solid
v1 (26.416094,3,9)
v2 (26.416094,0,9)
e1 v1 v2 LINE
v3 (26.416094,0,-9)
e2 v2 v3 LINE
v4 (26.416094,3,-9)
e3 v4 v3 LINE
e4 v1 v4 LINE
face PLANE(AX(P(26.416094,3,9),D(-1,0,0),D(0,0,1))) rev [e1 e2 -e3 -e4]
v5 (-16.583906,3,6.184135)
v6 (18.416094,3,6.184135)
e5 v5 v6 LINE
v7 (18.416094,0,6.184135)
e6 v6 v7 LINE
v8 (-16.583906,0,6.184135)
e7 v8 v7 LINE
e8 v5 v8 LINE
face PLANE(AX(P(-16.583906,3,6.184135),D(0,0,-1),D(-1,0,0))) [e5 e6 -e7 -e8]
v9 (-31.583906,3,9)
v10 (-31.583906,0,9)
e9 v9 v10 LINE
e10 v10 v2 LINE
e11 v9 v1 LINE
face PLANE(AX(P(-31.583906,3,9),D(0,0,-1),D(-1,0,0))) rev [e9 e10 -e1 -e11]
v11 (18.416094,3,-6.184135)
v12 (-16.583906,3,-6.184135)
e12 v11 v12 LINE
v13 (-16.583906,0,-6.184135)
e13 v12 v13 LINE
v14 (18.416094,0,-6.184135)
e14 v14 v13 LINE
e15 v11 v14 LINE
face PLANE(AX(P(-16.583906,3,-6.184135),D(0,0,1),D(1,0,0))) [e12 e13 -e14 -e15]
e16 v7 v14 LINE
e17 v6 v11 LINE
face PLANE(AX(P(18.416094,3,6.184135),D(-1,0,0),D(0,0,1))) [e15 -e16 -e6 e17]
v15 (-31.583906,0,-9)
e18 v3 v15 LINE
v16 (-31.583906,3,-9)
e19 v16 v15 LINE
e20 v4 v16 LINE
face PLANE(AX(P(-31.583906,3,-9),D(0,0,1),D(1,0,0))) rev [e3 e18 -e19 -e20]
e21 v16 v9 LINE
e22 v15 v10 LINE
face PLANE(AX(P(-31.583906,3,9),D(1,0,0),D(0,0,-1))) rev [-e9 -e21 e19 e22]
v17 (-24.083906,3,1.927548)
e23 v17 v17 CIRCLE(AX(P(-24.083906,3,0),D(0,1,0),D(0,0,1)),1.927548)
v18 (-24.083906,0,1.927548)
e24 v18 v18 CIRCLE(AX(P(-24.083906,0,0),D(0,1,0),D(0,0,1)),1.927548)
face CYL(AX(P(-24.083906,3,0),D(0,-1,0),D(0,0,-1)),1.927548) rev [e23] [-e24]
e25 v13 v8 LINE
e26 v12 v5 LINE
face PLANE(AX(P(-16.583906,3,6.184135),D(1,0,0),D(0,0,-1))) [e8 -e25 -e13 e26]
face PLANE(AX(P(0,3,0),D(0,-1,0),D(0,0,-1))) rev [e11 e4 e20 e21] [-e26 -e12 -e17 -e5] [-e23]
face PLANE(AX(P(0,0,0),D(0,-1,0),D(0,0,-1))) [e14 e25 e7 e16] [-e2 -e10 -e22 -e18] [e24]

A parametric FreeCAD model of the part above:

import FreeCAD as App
import Part
import Sketcher

V = App.Vector
Q = App.Units.Quantity


def add_polygon(sketch, points):
    """Adds a closed chain of lines whose ends are joined by coincident constraints."""
    first, n = sketch.GeometryCount, len(points)
    for a, b in zip(points, points[1:] + points[:1]):
        sketch.addGeometry(Part.LineSegment(App.Vector(*a, 0), App.Vector(*b, 0)), False)
    for i in range(n):
        sketch.addConstraint(Sketcher.Constraint("Coincident", first + i, 2, first + (i + 1) % n, 1))

doc = App.newDocument("Part")
body = doc.addObject("PartDesign::Body", "Body")

# Sketch on XZ plane
sketch1 = doc.addObject("Sketcher::SketchObject", "Sketch")
body.addObject(sketch1)
sketch1.AttachmentSupport = (doc.XZ_Plane, [""])
sketch1.MapMode = "FlatFace"
add_polygon(sketch1, [(-31.583906, -9), (-31.583906, 9), (26.416094, 9), (26.416094, -9)])  # lines 0-3
sketch1.addGeometry(Part.Circle(V(-24.083906, 0, 0), V(0, 0, 1), 1.927548), False)  # 4
add_polygon(sketch1, [(18.416094, 6.184135), (-16.583906, 6.184135), (-16.583906, -6.184135), (18.416094, -6.184135)])  # lines 5-8
sketch1.addConstraint(Sketcher.Constraint("Vertical", 0))
sketch1.addConstraint(Sketcher.Constraint("Horizontal", 1))
sketch1.addConstraint(Sketcher.Constraint("Vertical", 2))
sketch1.addConstraint(Sketcher.Constraint("Horizontal", 3))
sketch1.addConstraint(Sketcher.Constraint("Horizontal", 5))
sketch1.addConstraint(Sketcher.Constraint("Vertical", 6))
sketch1.addConstraint(Sketcher.Constraint("Horizontal", 7))
sketch1.addConstraint(Sketcher.Constraint("Vertical", 8))
sketch1.addConstraint(Sketcher.Constraint("PointOnObject", 4, 3, -1))
sketch1.addConstraint(Sketcher.Constraint("DistanceX", 1, 1, 1, 2, Q("58 mm")))
sketch1.addConstraint(Sketcher.Constraint("DistanceX", 5, 2, 5, 1, Q("35 mm")))
sketch1.addConstraint(Sketcher.Constraint("DistanceY", 0, 1, 0, 2, Q("18 mm")))
sketch1.addConstraint(Sketcher.Constraint("DistanceY", -1, 1, 0, 2, Q("9 mm")))
sketch1.addConstraint(Sketcher.Constraint("DistanceX", 0, 2, 5, 2, Q("15 mm")))
sketch1.addConstraint(Sketcher.Constraint("DistanceX", 0, 2, 4, 3, Q("7.5 mm")))
sketch1.addConstraint(Sketcher.Constraint("Diameter", 4, Q("3.855096 mm")))
sketch1.addConstraint(Sketcher.Constraint("DistanceY", 6, 2, 6, 1, Q("12.36827 mm")))
sketch1.addConstraint(Sketcher.Constraint("DistanceX", 4, 3, -1, 1, Q("24.083906 mm")))
sketch1.addConstraint(Sketcher.Constraint("DistanceY", -1, 1, 5, 2, Q("6.184135 mm")))
pad1 = doc.addObject("PartDesign::Pad", "Pad")
body.addObject(pad1)
pad1.Profile = sketch1
pad1.Length = 3
pad1.Reversed = True

doc.recompute()
